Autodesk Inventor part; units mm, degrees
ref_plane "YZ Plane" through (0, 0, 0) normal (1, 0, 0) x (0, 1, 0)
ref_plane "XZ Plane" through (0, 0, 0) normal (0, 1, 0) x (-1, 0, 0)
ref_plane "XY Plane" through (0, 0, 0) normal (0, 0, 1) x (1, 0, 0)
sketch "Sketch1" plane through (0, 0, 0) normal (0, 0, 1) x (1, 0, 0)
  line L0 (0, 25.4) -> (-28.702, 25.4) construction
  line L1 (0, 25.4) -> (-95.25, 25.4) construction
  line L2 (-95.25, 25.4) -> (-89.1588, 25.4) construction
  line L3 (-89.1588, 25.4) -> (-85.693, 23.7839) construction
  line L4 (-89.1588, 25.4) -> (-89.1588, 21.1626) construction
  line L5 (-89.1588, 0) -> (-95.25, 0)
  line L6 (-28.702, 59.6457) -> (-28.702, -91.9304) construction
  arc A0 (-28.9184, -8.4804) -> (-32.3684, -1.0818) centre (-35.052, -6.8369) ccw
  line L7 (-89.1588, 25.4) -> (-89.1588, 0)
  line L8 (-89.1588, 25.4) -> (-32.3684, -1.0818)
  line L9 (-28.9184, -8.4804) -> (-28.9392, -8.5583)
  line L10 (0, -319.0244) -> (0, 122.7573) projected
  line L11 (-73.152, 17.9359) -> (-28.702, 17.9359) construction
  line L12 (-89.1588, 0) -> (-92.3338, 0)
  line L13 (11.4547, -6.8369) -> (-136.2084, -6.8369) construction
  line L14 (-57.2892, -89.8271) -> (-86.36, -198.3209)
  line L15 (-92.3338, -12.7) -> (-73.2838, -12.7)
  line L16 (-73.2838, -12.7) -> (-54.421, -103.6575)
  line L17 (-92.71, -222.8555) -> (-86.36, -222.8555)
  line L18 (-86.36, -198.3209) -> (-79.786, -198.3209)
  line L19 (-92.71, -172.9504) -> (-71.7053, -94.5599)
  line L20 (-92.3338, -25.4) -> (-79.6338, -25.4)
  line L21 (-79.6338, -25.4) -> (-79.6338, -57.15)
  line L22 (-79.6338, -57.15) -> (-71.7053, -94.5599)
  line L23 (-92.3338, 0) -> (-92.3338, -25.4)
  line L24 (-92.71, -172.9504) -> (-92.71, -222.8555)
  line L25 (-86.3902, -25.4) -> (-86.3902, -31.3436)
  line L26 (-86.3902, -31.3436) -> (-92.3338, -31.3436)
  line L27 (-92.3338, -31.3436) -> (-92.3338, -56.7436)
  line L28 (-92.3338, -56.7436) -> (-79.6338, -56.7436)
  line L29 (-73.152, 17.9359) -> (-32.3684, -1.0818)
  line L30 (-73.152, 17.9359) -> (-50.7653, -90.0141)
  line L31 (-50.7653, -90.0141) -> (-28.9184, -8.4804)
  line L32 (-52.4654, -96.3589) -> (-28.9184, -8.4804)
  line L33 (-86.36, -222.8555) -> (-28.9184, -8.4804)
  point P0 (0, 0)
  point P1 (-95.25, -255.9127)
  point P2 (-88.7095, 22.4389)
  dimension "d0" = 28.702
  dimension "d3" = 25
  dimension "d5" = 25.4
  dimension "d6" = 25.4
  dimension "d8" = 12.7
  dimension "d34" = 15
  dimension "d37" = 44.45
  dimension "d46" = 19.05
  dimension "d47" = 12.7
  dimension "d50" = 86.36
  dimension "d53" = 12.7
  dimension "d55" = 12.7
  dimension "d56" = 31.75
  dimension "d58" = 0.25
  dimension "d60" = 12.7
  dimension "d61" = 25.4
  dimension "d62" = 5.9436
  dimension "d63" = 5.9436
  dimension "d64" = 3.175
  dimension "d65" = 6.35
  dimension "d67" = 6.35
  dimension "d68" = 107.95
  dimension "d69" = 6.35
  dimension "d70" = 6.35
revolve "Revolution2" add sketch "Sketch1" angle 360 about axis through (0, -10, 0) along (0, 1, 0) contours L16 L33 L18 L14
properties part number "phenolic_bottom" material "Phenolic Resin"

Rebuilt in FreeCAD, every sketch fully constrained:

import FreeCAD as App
import Part
import Sketcher
from FreeCAD import Vector
Q = App.Units.Quantity

doc = App.newDocument("Part")
body = doc.addObject("PartDesign::Body", "Body")

# Sketch on XY plane
sketch1 = doc.addObject("Sketcher::SketchObject", "Sketch")
body.addObject(sketch1)
sketch1.AttachmentSupport = (doc.XY_Plane, [""])
sketch1.MapMode = "FlatFace"
sketch1.addGeometry(Part.LineSegment(Vector(-54, -104, 0), Vector(-57, -90, 0)), False)
sketch1.addGeometry(Part.LineSegment(Vector(-57, -90, 0), Vector(-86, -198, 0)), False)
sketch1.addGeometry(Part.LineSegment(Vector(-86, -198, 0), Vector(-80, -198, 0)), False)
sketch1.addGeometry(Part.LineSegment(Vector(-80, -198, 0), Vector(-54, -104, 0)), False)
sketch1.addConstraint(Sketcher.Constraint("Coincident", 0, 2, 1, 1))
sketch1.addConstraint(Sketcher.Constraint("Coincident", 1, 2, 2, 1))
sketch1.addConstraint(Sketcher.Constraint("Coincident", 2, 2, 3, 1))
sketch1.addConstraint(Sketcher.Constraint("Coincident", 3, 2, 0, 1))
sketch1.addConstraint(Sketcher.Constraint("Horizontal", 2))
sketch1.addConstraint(Sketcher.Constraint("Parallel", 1, 3))
sketch1.addConstraint(Sketcher.Constraint("DistanceX", 1, 2, -1, 1, Q("86.36 mm")))
sketch1.addConstraint(Sketcher.Constraint("Angle", 1, Q("-105 deg")))
sketch1.addConstraint(Sketcher.Constraint("DistanceX", 2, 1, 2, 2, Q("6.574 mm")))
sketch1.addConstraint(Sketcher.Constraint("Distance", 1, Q("112.321 mm")))
sketch1.addConstraint(Sketcher.Constraint("DistanceY", 0, 2, -1, 1, Q("89.827 mm")))
sketch1.addConstraint(Sketcher.Constraint("DistanceX", 3, 2, -1, 1, Q("54.421 mm")))
revolution = doc.addObject("PartDesign::Revolution", "Revolution")
body.addObject(revolution)
revolution.Profile = sketch1
revolution.ReferenceAxis = (sketch1, ["V_Axis"])
revolution.Angle = 360

doc.recompute()
